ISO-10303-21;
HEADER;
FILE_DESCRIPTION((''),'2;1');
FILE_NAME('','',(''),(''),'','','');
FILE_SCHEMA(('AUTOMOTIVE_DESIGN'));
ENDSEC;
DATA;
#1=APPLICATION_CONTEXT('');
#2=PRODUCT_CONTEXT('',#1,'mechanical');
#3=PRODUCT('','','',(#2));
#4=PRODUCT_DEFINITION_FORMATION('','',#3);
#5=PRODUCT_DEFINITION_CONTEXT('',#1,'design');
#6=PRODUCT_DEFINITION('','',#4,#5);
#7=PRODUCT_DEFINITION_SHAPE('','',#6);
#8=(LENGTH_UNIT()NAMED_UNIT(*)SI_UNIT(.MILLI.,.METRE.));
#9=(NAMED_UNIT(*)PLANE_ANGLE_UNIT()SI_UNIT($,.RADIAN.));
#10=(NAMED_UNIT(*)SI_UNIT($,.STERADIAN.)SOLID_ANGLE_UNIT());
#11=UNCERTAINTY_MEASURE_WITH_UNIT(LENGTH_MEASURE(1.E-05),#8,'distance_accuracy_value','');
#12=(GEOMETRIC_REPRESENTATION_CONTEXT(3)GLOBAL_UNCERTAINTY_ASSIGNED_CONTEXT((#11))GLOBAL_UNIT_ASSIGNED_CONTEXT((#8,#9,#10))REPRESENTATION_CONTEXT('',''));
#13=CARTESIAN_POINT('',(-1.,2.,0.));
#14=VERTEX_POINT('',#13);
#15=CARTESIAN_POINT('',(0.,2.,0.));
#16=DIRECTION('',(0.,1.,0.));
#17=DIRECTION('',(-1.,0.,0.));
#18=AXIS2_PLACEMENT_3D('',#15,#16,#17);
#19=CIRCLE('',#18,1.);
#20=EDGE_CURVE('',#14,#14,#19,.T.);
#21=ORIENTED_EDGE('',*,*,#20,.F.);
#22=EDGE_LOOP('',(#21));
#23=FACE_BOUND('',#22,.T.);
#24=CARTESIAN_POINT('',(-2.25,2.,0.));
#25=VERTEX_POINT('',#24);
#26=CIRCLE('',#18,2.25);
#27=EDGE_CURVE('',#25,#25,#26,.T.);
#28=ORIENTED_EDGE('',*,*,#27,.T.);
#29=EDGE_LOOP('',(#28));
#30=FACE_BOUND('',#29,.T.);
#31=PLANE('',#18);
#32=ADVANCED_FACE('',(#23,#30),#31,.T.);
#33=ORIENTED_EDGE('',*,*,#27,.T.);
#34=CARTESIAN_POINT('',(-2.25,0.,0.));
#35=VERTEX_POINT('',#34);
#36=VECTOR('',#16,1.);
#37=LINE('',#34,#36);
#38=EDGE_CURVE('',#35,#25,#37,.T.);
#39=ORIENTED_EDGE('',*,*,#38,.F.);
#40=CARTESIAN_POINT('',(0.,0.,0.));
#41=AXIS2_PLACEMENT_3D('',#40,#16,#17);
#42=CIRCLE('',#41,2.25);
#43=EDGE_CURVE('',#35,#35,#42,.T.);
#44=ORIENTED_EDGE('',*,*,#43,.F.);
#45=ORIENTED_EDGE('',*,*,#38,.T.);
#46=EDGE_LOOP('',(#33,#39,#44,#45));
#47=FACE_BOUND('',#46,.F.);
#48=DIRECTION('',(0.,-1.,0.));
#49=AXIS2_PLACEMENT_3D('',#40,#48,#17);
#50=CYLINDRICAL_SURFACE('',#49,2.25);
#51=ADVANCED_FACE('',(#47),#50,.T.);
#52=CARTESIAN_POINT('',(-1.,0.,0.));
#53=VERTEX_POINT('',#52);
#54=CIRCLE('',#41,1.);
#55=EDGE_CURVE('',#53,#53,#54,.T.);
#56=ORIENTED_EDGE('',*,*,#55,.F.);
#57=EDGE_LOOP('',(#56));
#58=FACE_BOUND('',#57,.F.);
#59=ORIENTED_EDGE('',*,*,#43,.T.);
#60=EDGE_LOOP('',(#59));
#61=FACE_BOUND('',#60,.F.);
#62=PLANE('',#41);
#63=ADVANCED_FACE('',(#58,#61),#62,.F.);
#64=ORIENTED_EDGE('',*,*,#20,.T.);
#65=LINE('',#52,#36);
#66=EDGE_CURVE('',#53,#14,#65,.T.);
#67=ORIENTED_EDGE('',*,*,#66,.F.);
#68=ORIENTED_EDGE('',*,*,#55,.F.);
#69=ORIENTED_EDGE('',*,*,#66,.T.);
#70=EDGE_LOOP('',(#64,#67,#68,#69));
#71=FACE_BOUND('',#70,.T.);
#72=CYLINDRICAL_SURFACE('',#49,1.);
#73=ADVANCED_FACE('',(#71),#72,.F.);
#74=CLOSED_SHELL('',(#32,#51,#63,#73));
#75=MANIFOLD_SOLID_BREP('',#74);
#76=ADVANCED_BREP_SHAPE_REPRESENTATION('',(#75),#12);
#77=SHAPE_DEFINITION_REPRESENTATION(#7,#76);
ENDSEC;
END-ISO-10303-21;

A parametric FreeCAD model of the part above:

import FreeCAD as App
import Part
import Sketcher

V = App.Vector

doc = App.newDocument("Part")
body = doc.addObject("PartDesign::Body", "Body")

sketch1 = body.newObject("Sketcher::SketchObject", "Sketch")
sketch1.AttachmentSupport = (doc.getObject("XZ_Plane"), [""])
sketch1.MapMode = "FlatFace"
sketch1.addGeometry([
    Part.Circle(V(0, 0, 0), V(0, 0, 1), 2.2),
    Part.Circle(V(0, 0, 0), V(0, 0, 1), 1),
], False)
sketch1.addConstraint([
    Sketcher.Constraint("Coincident", 0, 3, -1, 1),
    Sketcher.Constraint("Coincident", 1, 3, -1, 1),
    Sketcher.Constraint("Diameter", 1, 2.0),
    Sketcher.Constraint("Diameter", 0, 4.5),
])
pad1 = body.newObject("PartDesign::Pad", "Pad")
pad1.Profile = sketch1
pad1.Length = 2
pad1.Reversed = True

doc.recompute()
